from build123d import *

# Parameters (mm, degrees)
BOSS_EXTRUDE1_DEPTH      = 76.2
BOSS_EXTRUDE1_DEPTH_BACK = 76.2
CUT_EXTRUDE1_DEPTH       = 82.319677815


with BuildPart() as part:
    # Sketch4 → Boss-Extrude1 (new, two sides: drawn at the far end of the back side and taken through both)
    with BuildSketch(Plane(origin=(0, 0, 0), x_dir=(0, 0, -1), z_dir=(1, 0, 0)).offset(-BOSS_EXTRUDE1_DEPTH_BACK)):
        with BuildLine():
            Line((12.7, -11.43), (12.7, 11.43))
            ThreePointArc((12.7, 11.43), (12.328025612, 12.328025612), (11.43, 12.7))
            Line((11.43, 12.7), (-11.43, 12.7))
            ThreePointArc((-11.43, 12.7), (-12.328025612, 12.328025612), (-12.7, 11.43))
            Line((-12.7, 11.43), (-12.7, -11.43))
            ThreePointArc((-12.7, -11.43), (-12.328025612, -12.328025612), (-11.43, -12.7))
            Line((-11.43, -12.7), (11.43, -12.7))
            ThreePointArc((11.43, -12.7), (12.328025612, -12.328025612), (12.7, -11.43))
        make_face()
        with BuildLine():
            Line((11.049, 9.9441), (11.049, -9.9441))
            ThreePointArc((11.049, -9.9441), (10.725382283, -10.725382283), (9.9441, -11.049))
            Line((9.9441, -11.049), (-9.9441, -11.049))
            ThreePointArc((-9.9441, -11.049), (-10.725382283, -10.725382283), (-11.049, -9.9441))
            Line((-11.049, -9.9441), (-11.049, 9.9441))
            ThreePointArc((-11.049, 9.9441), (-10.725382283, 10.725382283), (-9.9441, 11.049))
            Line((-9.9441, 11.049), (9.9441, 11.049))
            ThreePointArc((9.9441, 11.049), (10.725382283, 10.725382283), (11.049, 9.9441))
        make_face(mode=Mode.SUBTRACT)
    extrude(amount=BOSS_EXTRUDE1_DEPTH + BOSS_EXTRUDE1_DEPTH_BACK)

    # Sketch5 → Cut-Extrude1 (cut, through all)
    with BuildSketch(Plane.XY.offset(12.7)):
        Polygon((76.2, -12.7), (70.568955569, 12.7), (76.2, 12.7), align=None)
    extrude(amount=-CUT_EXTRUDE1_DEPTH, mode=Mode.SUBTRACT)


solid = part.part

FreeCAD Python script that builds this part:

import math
import FreeCAD as App
import Part
import Sketcher
from FreeCAD import Vector
Q = App.Units.Quantity

doc = App.newDocument("Part")
body = doc.addObject("PartDesign::Body", "Body")

sketch1 = doc.addObject("Sketcher::SketchObject", "Sketch")
body.addObject(sketch1)
sketch1.AttachmentSupport = (doc.YZ_Plane, [""])
sketch1.MapMode = "FlatFace"
sketch1.addGeometry([
    Part.LineSegment(Vector(-11.4, -12.7, 0), Vector(11.4, -12.7, 0)),
    Part.ArcOfCircle(Part.Circle(Vector(11.4, -11.4, 0), Vector(0, 0, 1), 1.3), math.radians(-90), math.radians(0)),
    Part.LineSegment(Vector(12.7, -11.4, 0), Vector(12.7, 11.4, 0)),
    Part.ArcOfCircle(Part.Circle(Vector(11.4, 11.4, 0), Vector(0, 0, 1), 1.3), math.radians(0), math.radians(90)),
    Part.LineSegment(Vector(11.4, 12.7, 0), Vector(-11.4, 12.7, 0)),
    Part.ArcOfCircle(Part.Circle(Vector(-11.4, 11.4, 0), Vector(0, 0, 1), 1.3), math.radians(90), math.radians(180)),
    Part.LineSegment(Vector(-12.7, 11.4, 0), Vector(-12.7, -11.4, 0)),
    Part.ArcOfCircle(Part.Circle(Vector(-11.4, -11.4, 0), Vector(0, 0, 1), 1.3), math.radians(180), math.radians(270)),
    Part.ArcOfCircle(Part.Circle(Vector(9.9, -9.9, 0), Vector(0, 0, 1), 1.1), math.radians(-90), math.radians(0)),
    Part.LineSegment(Vector(9.9, -11, 0), Vector(-9.9, -11, 0)),
    Part.ArcOfCircle(Part.Circle(Vector(-9.9, -9.9, 0), Vector(0, 0, 1), 1.1), math.radians(180), math.radians(270)),
    Part.LineSegment(Vector(-11, -9.9, 0), Vector(-11, 9.9, 0)),
    Part.ArcOfCircle(Part.Circle(Vector(-9.9, 9.9, 0), Vector(0, 0, 1), 1.1), math.radians(90), math.radians(180)),
    Part.LineSegment(Vector(-9.9, 11, 0), Vector(9.9, 11, 0)),
    Part.ArcOfCircle(Part.Circle(Vector(9.9, 9.9, 0), Vector(0, 0, 1), 1.1), math.radians(0), math.radians(90)),
    Part.LineSegment(Vector(11, 9.9, 0), Vector(11, -9.9, 0)),
], False)
sketch1.addConstraint([
    Sketcher.Constraint("Tangent", 0, 2, 1, 1),
    Sketcher.Constraint("Tangent", 1, 2, 2, 1),
    Sketcher.Constraint("Tangent", 2, 2, 3, 1),
    Sketcher.Constraint("Tangent", 3, 2, 4, 1),
    Sketcher.Constraint("Tangent", 4, 2, 5, 1),
    Sketcher.Constraint("Tangent", 5, 2, 6, 1),
    Sketcher.Constraint("Tangent", 6, 2, 7, 1),
    Sketcher.Constraint("Tangent", 7, 2, 0, 1),
    Sketcher.Constraint("Tangent", 8, 1, 9, 1),
    Sketcher.Constraint("Tangent", 9, 2, 10, 2),
    Sketcher.Constraint("Tangent", 10, 1, 11, 1),
    Sketcher.Constraint("Tangent", 11, 2, 12, 2),
    Sketcher.Constraint("Tangent", 12, 1, 13, 1),
    Sketcher.Constraint("Tangent", 13, 2, 14, 2),
    Sketcher.Constraint("Tangent", 14, 1, 15, 1),
    Sketcher.Constraint("Tangent", 15, 2, 8, 2),
    Sketcher.Constraint("Horizontal", 0),
    Sketcher.Constraint("Vertical", 2),
    Sketcher.Constraint("Horizontal", 4),
    Sketcher.Constraint("Vertical", 6),
    Sketcher.Constraint("Horizontal", 9),
    Sketcher.Constraint("Vertical", 11),
    Sketcher.Constraint("Horizontal", 13),
    Sketcher.Constraint("Vertical", 15),
    Sketcher.Constraint("Equal", 1, 3),
    Sketcher.Constraint("Equal", 3, 5),
    Sketcher.Constraint("Equal", 5, 7),
    Sketcher.Constraint("Equal", 8, 10),
    Sketcher.Constraint("Equal", 10, 12),
    Sketcher.Constraint("Equal", 12, 14),
    Sketcher.Constraint("Symmetric", 1, 3, 5, 3, -1, 1),
    Sketcher.Constraint("Symmetric", 8, 3, 12, 3, -1, 1),
    Sketcher.Constraint("Equal", 4, 2),
    Sketcher.Constraint("Equal", 13, 11),
    Sketcher.Constraint("Radius", 1, Q("0.05 in")),
    Sketcher.Constraint("DistanceX", 0, 1, 0, 2, Q("0.9 in")),
    Sketcher.Constraint("Radius", 8, Q("0.0435 in")),
    Sketcher.Constraint("DistanceX", 9, 2, 9, 1, Q("0.783 in")),
])
pad1 = doc.addObject("PartDesign::Pad", "Pad")
body.addObject(pad1)
pad1.Profile = sketch1
pad1.Type = "TwoLengths"
pad1.Length = Q("3 in")
pad1.Length2 = Q("3 in")

sketch2 = doc.addObject("Sketcher::SketchObject", "Sketch001")
body.addObject(sketch2)
sketch2.AttachmentSupport = (doc.XY_Plane, [""])
sketch2.MapMode = "FlatFace"
sketch2.AttachmentOffset = App.Placement(Vector(0, 0, 0.5 * 25.4), App.Rotation())
sketch2.addGeometry([
    Part.LineSegment(Vector(71, 13, 0), Vector(76, -13, 0)),
    Part.LineSegment(Vector(76, -13, 0), Vector(76, 13, 0)),
    Part.LineSegment(Vector(76, 13, 0), Vector(71, 13, 0)),
], False)
sketch2.addConstraint([
    Sketcher.Constraint("Coincident", 0, 2, 1, 1),
    Sketcher.Constraint("Coincident", 1, 2, 2, 1),
    Sketcher.Constraint("Coincident", 2, 2, 0, 1),
    Sketcher.Constraint("Vertical", 1),
    Sketcher.Constraint("Horizontal", 2),
    Sketcher.Constraint("DistanceY", 1, 1, 1, 2, Q("1 in")),
    Sketcher.Constraint("DistanceX", -1, 1, 0, 2, Q("3 in")),
    Sketcher.Constraint("DistanceY", 0, 2, -1, 1, Q("0.5 in")),
    Sketcher.Constraint("Angle", 0, Q("-77.5 deg")),
])
pocket1 = doc.addObject("PartDesign::Pocket", "Pocket")
body.addObject(pocket1)
pocket1.Profile = sketch2
pocket1.Type = "ThroughAll"

doc.recompute()
